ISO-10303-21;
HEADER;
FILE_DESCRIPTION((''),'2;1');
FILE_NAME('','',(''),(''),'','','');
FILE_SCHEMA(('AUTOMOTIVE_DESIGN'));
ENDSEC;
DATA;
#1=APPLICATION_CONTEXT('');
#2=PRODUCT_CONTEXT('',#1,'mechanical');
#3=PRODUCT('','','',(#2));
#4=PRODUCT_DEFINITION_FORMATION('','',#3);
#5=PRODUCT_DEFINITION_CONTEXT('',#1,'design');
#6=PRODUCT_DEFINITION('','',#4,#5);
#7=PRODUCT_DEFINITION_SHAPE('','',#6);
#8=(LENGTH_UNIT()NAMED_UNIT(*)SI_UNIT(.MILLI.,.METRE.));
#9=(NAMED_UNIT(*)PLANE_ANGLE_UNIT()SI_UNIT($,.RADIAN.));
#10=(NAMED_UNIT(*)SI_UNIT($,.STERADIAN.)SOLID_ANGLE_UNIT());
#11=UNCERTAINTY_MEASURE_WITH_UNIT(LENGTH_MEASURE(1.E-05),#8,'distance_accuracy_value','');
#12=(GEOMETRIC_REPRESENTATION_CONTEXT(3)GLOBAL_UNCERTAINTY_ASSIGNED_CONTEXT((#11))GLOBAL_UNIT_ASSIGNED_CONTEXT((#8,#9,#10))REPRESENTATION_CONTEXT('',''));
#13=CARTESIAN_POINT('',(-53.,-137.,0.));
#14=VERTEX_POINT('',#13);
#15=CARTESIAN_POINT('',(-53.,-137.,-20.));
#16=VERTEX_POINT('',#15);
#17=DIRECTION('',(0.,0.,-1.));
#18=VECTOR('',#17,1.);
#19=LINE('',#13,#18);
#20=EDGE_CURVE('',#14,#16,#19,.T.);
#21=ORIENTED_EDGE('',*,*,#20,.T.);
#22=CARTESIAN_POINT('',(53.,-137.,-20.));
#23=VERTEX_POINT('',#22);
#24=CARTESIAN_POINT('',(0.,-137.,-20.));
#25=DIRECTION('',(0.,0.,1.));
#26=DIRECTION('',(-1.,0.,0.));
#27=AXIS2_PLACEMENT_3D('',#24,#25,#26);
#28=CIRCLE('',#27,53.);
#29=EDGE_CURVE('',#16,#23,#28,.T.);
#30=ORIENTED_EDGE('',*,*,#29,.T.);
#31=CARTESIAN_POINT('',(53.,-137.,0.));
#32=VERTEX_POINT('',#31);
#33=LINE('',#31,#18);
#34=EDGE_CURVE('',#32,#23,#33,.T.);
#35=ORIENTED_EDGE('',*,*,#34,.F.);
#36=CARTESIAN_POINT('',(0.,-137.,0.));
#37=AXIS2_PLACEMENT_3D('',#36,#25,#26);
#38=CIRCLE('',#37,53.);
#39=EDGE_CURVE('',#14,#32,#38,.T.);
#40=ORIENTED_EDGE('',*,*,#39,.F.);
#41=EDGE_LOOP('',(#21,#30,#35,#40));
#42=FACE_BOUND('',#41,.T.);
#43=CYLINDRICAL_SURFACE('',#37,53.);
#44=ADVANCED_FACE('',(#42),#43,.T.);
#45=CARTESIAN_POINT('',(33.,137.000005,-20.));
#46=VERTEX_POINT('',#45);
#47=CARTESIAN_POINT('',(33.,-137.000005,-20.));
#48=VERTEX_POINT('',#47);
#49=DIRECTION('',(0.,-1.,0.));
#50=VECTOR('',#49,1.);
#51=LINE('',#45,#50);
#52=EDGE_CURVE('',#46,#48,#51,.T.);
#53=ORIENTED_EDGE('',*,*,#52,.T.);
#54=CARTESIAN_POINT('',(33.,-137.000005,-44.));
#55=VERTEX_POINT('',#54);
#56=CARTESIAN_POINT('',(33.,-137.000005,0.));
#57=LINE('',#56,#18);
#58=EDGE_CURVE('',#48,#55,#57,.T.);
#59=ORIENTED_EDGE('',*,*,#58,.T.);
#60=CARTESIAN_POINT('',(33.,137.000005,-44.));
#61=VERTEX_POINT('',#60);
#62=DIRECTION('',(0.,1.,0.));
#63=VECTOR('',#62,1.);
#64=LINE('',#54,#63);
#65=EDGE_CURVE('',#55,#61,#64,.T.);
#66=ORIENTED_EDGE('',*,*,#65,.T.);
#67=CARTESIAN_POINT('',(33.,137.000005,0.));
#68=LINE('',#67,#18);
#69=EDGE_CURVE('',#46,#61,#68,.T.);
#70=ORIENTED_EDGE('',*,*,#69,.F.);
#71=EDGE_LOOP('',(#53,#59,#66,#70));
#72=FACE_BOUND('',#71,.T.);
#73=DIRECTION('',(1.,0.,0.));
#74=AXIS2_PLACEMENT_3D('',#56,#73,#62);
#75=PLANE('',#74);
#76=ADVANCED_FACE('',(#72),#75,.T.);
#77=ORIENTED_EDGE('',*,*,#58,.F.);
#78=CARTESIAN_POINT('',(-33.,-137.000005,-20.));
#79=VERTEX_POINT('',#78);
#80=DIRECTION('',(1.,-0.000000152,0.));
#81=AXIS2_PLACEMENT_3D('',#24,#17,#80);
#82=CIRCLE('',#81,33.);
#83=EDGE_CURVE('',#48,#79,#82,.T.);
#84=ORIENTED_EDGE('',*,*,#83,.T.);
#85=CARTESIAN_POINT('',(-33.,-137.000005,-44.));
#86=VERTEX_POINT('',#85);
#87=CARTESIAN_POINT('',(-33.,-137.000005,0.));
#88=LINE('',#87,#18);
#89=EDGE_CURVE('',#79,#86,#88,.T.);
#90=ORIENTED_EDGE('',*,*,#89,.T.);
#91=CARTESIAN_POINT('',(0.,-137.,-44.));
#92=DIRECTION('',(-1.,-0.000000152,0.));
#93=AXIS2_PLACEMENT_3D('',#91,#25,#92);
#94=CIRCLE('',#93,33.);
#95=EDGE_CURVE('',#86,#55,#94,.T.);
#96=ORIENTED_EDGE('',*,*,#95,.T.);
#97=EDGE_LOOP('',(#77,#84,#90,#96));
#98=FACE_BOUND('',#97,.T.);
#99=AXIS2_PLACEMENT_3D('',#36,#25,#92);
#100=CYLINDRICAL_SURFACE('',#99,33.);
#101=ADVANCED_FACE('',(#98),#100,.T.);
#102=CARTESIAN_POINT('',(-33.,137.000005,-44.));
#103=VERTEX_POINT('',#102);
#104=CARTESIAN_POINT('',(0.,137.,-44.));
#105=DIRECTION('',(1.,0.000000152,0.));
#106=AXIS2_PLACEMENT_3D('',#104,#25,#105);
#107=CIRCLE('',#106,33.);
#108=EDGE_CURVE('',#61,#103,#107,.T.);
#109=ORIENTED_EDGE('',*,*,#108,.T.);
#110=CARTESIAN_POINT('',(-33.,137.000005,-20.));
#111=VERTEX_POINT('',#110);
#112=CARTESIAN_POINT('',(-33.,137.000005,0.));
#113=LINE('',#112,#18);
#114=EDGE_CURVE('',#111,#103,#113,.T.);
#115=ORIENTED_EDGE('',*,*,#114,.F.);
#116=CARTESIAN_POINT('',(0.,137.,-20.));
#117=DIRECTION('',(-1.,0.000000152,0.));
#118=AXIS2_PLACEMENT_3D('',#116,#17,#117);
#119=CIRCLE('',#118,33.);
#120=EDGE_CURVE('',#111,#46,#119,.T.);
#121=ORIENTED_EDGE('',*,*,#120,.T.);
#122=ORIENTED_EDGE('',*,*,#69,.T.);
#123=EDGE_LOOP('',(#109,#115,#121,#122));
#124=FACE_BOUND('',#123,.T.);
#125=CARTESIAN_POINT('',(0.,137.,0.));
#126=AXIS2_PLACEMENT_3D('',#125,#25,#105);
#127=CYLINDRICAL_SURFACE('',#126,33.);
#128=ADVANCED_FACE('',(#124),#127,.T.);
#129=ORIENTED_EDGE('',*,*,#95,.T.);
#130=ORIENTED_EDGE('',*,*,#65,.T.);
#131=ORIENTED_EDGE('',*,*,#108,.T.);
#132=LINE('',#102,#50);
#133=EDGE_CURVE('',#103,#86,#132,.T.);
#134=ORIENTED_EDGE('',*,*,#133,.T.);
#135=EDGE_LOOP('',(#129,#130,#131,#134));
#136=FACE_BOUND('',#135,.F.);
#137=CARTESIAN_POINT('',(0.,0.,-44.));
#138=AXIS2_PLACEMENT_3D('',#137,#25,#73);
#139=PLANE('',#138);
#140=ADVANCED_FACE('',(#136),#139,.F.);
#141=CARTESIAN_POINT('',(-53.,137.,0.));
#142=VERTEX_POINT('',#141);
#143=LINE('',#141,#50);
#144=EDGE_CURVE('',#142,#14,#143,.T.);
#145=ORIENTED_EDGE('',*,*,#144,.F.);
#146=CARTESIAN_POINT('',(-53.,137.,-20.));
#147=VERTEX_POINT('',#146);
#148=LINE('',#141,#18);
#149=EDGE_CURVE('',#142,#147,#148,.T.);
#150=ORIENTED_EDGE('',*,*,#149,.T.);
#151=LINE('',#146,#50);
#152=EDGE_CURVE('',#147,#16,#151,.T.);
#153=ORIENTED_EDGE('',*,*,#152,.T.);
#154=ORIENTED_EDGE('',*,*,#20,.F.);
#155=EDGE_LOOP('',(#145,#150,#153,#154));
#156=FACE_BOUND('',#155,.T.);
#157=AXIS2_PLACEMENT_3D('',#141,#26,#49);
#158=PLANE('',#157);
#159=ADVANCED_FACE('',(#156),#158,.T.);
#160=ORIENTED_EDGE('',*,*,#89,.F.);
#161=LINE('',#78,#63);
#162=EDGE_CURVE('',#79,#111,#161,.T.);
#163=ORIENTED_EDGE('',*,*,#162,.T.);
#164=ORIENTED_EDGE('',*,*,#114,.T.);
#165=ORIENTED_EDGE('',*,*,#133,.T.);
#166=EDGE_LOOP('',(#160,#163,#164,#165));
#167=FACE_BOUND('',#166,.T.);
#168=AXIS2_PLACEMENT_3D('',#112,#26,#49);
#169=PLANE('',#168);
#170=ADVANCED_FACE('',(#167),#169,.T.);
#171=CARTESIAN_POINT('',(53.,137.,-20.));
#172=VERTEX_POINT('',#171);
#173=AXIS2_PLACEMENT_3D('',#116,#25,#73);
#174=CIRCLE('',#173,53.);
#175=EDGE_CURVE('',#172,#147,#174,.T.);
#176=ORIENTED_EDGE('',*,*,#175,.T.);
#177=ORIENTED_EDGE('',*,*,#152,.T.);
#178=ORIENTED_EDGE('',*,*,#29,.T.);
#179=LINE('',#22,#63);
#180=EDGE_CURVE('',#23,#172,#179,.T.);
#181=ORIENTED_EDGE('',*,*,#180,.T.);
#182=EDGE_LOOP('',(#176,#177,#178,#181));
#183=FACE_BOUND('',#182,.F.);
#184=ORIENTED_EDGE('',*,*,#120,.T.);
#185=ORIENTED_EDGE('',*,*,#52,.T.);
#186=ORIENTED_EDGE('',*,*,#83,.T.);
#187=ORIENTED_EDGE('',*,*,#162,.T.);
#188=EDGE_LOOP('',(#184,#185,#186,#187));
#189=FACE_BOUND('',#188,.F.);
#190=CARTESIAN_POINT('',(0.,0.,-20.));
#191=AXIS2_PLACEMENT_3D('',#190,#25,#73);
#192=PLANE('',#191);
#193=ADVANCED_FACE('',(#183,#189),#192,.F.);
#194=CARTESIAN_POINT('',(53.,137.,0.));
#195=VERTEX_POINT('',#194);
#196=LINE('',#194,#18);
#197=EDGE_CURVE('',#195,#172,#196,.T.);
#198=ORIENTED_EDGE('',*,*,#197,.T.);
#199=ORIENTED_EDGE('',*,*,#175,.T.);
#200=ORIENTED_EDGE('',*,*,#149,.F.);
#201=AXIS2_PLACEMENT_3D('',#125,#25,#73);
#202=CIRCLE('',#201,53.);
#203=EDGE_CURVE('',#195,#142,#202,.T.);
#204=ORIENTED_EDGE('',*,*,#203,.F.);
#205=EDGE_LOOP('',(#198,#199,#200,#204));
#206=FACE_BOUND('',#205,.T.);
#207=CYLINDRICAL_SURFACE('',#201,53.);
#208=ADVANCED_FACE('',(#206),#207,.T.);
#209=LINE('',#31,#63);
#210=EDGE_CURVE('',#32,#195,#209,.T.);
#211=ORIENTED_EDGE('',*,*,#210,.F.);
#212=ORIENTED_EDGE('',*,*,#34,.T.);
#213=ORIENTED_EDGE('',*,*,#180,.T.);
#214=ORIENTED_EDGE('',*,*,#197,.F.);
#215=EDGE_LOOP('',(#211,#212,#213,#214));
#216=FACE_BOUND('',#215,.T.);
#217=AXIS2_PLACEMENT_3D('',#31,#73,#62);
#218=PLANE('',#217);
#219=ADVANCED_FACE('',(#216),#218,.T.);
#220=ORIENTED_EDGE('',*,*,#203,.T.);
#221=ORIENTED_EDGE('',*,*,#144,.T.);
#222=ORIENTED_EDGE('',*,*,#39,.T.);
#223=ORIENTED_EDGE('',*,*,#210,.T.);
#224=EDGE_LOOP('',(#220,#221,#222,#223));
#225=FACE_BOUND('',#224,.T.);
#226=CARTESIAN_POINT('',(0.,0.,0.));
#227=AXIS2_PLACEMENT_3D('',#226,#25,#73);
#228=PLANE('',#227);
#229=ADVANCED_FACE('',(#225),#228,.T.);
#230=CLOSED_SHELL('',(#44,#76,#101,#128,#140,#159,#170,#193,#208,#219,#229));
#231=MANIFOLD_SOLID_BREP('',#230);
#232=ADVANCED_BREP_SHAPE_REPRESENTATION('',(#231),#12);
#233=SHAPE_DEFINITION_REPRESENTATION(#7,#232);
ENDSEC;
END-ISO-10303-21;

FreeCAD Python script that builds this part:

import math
import FreeCAD as App
import Part
import Sketcher
from FreeCAD import Vector

doc = App.newDocument("Part")
params = doc.addObject("Spreadsheet::Sheet", "Params")
for row, (alias, value) in enumerate([
    ("sketch1_radius", "33 mm"),
    ("pad1_length", "44 mm"),
    ("sketch2_radius", "53 mm"),
    ("sketch2_radius2", "33 mm"),
    ("sketch2_height", "274 mm"),
    ("pad2_length", "20 mm"),
], start=1):
    params.set(f"A{row}", alias)
    params.set(f"B{row}", "=" + value)
    params.setAlias(f"B{row}", alias)

body = doc.addObject("PartDesign::Body", "Body")

# Sketch on XY plane
sketch1 = body.newObject("Sketcher::SketchObject", "Sketch")
sketch1.AttachmentSupport = (doc.getObject("XY_Plane"), [""])
sketch1.MapMode = "FlatFace"
sketch1.addGeometry([
    Part.ArcOfCircle(Part.Circle(Vector(0, 137, 0), Vector(0, 0, 1), 33), math.radians(0), math.radians(180)),
    Part.LineSegment(Vector(-33, 137, 0), Vector(-33, -137, 0)),
    Part.ArcOfCircle(Part.Circle(Vector(0, -137, 0), Vector(0, 0, 1), 33), math.radians(-180), math.radians(0)),
    Part.LineSegment(Vector(33, -137, 0), Vector(33, 137, 0)),
], False)
sketch1.addConstraint([
    Sketcher.Constraint("Tangent", 0, 2, 1, 1),
    Sketcher.Constraint("Tangent", 1, 2, 2, 1),
    Sketcher.Constraint("Tangent", 2, 2, 3, 1),
    Sketcher.Constraint("Tangent", 3, 2, 0, 1),
    Sketcher.Constraint("Vertical", 1),
    Sketcher.Constraint("Vertical", 3),
    Sketcher.Constraint("Symmetric", 0, 3, 2, 3, -1, 1),
    Sketcher.Constraint("Radius", 0, 33.0),
    Sketcher.Constraint("DistanceY", -1, 1, 0, 3, 137.0),
])
sketch1.setExpression("Constraints[7]", "Params.sketch1_radius")
pad1 = body.newObject("PartDesign::Pad", "Pad")
pad1.Profile = sketch1
pad1.setExpression("Length", "Params.pad1_length")
pad1.Reversed = True

# Sketch on XY plane
sketch2 = body.newObject("Sketcher::SketchObject", "Sketch001")
sketch2.AttachmentSupport = (doc.getObject("XY_Plane"), [""])
sketch2.MapMode = "FlatFace"
sketch2.addGeometry([
    Part.ArcOfCircle(Part.Circle(Vector(0, -137, 0), Vector(0, 0, 1), 53), math.radians(180), math.radians(360)),  # 0
    Part.LineSegment(Vector(53, -137, 0), Vector(53, 137, 0)),  # 1
    Part.ArcOfCircle(Part.Circle(Vector(0, 137, 0), Vector(0, 0, 1), 53), math.radians(0), math.radians(180)),  # 2
    Part.LineSegment(Vector(-53, 137, 0), Vector(-53, -137, 0)),  # 3
    Part.ArcOfCircle(Part.Circle(Vector(0, -137, 0), Vector(0, 0, 1), 33), math.radians(-180), math.radians(0)),  # 4
    Part.LineSegment(Vector(-33, -137, 0), Vector(-33, 137, 0)),  # 5
    Part.ArcOfCircle(Part.Circle(Vector(0, 137, 0), Vector(0, 0, 1), 33), math.radians(0), math.radians(180)),  # 6
    Part.LineSegment(Vector(33, 137, 0), Vector(33, -137, 0)),  # 7
], False)
sketch2.addConstraint([
    Sketcher.Constraint("Tangent", 0, 2, 1, 1),
    Sketcher.Constraint("Tangent", 1, 2, 2, 1),
    Sketcher.Constraint("Tangent", 2, 2, 3, 1),
    Sketcher.Constraint("Tangent", 3, 2, 0, 1),
    Sketcher.Constraint("Tangent", 4, 1, 5, 1),
    Sketcher.Constraint("Tangent", 5, 2, 6, 2),
    Sketcher.Constraint("Tangent", 6, 1, 7, 1),
    Sketcher.Constraint("Tangent", 7, 2, 4, 2),
    Sketcher.Constraint("Vertical", 1),
    Sketcher.Constraint("Vertical", 3),
    Sketcher.Constraint("Vertical", 5),
    Sketcher.Constraint("Vertical", 7),
    Sketcher.Constraint("Coincident", 4, 3, 0, 3),
    Sketcher.Constraint("Symmetric", 0, 3, 2, 3, -1, 1),
    Sketcher.Constraint("Horizontal", 6, 3, 1, 2),
    Sketcher.Constraint("Radius", 0, 53.0),
    Sketcher.Constraint("Radius", 4, 33.0),
    Sketcher.Constraint("DistanceY", 1, 1, 1, 2, 274.0),
])
sketch2.setExpression("Constraints[15]", "Params.sketch2_radius")
sketch2.setExpression("Constraints[16]", "Params.sketch2_radius2")
sketch2.setExpression("Constraints[17]", "Params.sketch2_height")
pad2 = body.newObject("PartDesign::Pad", "Pad001")
pad2.Profile = sketch2
pad2.setExpression("Length", "Params.pad2_length")
pad2.Reversed = True

doc.recompute()
